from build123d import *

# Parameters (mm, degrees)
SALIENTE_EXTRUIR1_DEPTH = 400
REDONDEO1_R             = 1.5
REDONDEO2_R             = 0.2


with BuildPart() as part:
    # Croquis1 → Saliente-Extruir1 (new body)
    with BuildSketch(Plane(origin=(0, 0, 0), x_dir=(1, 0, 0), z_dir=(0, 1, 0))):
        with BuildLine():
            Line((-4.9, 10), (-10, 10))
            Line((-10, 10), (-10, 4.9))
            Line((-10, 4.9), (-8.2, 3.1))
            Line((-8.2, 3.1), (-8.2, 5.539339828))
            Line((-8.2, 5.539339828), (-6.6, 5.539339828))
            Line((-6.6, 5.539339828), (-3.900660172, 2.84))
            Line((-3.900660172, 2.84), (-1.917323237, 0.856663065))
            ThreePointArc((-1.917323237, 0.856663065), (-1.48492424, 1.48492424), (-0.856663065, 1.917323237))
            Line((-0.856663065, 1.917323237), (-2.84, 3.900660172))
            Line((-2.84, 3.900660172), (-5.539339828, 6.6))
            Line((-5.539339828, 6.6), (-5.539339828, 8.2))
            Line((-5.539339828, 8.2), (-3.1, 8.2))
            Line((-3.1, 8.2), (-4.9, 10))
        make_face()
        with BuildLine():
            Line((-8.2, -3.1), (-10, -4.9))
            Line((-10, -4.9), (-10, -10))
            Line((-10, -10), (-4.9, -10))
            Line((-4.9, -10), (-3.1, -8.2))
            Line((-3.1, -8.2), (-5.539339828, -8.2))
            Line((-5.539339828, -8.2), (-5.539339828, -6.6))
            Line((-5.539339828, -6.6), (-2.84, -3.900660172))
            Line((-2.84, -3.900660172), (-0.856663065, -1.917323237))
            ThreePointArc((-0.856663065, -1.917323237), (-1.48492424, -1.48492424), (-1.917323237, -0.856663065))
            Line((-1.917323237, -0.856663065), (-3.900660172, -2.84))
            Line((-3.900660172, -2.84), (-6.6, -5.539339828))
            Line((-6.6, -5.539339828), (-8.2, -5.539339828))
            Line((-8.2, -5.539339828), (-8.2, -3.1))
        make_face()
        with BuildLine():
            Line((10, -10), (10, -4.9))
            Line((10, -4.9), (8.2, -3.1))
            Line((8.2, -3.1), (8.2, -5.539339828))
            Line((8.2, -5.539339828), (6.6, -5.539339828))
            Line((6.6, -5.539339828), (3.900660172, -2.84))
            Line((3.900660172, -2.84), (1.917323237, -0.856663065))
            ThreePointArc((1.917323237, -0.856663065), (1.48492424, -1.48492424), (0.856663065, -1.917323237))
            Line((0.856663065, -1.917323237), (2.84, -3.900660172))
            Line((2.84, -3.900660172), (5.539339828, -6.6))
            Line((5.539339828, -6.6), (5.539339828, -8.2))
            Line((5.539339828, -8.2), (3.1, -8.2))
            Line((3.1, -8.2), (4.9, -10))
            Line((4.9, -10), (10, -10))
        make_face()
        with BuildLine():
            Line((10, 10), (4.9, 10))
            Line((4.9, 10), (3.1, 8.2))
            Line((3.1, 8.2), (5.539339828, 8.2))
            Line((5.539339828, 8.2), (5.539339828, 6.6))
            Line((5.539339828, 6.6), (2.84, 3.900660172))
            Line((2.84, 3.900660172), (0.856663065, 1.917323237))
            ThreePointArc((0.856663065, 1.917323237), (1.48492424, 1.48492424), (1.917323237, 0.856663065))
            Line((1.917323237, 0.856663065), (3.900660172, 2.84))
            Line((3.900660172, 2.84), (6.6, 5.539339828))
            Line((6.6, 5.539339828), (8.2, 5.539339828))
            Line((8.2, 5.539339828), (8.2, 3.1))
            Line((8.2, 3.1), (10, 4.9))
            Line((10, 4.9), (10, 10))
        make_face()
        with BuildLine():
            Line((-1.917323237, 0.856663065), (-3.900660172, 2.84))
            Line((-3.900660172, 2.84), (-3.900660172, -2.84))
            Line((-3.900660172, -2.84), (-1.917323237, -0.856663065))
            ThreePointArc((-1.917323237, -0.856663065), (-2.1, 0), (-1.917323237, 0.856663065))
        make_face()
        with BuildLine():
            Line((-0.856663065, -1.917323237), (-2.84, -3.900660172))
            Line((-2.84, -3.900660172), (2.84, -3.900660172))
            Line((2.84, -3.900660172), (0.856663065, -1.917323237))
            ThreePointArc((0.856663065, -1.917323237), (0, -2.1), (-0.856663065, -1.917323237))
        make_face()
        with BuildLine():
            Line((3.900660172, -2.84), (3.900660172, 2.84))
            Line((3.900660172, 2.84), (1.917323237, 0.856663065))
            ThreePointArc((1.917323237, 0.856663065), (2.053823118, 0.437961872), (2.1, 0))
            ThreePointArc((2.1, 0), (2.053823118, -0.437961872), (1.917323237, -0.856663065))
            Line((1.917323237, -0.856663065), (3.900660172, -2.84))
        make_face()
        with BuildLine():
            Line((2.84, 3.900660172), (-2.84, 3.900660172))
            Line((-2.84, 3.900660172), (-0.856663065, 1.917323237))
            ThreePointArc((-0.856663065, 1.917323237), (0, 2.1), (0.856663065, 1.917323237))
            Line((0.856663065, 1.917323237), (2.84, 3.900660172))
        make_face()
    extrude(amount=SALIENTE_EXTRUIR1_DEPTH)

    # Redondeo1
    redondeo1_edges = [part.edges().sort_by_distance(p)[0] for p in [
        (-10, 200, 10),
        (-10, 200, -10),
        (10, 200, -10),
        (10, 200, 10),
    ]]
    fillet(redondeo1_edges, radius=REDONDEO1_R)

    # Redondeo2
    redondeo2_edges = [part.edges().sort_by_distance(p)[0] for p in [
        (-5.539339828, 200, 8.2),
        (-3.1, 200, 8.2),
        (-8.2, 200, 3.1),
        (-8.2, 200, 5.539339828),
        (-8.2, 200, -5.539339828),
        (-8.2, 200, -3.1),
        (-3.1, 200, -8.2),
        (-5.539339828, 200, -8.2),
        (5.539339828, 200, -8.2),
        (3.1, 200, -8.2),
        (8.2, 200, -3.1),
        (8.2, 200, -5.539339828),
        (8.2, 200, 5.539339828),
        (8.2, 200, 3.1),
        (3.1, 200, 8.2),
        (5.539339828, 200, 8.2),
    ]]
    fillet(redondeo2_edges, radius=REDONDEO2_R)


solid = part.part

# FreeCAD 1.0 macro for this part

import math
import FreeCAD as App
import Part
import Sketcher
from FreeCAD import Vector


def edges_at(feature, points):
    """Names of the edges that pass closest to the given points."""
    edges = feature.Shape.Edges
    near = lambda p: min(range(len(edges)), key=lambda i: edges[i].distToShape(Part.Vertex(*p))[0])
    return sorted({f"Edge{near(p) + 1}" for p in points})


def add_polygon(sketch, points):
    """Adds a closed chain of lines whose ends are joined by coincident constraints."""
    first, n = sketch.GeometryCount, len(points)
    for a, b in zip(points, points[1:] + points[:1]):
        sketch.addGeometry(Part.LineSegment(App.Vector(*a, 0), App.Vector(*b, 0)), False)
    for i in range(n):
        sketch.addConstraint(Sketcher.Constraint("Coincident", first + i, 2, first + (i + 1) % n, 1))

doc = App.newDocument("Part")
body = doc.addObject("PartDesign::Body", "Body")

# Sketch on XZ plane
sketch1 = doc.addObject("Sketcher::SketchObject", "Sketch")
body.addObject(sketch1)
sketch1.AttachmentSupport = (doc.XZ_Plane, [""])
sketch1.MapMode = "FlatFace"
add_polygon(sketch1, [(-4.9, -10), (-10, -10), (-10, -4.9), (-8.2, -3.1), (-8.2, -5.5), (-6.6, -5.5), (-3.9, -2.8), (-3.9, 2.8), (-6.6, 5.5), (-8.2, 5.5), (-8.2, 3.1), (-10, 4.9), (-10, 10), (-4.9, 10), (-3.1, 8.2), (-5.5, 8.2), (-5.5, 6.6), (-2.8, 3.9), (2.8, 3.9), (5.5, 6.6), (5.5, 8.2), (3.1, 8.2), (4.9, 10), (10, 10), (10, 4.9), (8.2, 3.1), (8.2, 5.5), (6.6, 5.5), (3.9, 2.8), (3.9, -2.8), (6.6, -5.5), (8.2, -5.5), (8.2, -3.1), (10, -4.9), (10, -10), (4.9, -10), (3.1, -8.2), (5.5, -8.2), (5.5, -6.6), (2.8, -3.9), (-2.8, -3.9), (-5.5, -6.6), (-5.5, -8.2), (-3.1, -8.2)])  # lines 0-43
sketch1.addGeometry(Part.ArcOfCircle(Part.Circle(Vector(0, 0, 0), Vector(0, 0, 1), 2.1), math.radians(-66), math.radians(-24)), False)  # 44
sketch1.addGeometry(Part.ArcOfCircle(Part.Circle(Vector(0, 0, 0), Vector(0, 0, 1), 2.1), math.radians(-24), math.radians(0)), False)  # 45
sketch1.addGeometry(Part.ArcOfCircle(Part.Circle(Vector(0, 0, 0), Vector(0, 0, 1), 2.1), math.radians(0), math.radians(24)), False)  # 46
sketch1.addGeometry(Part.ArcOfCircle(Part.Circle(Vector(0, 0, 0), Vector(0, 0, 1), 2.1), math.radians(24), math.radians(66)), False)  # 47
sketch1.addGeometry(Part.ArcOfCircle(Part.Circle(Vector(0, 0, 0), Vector(0, 0, 1), 2.1), math.radians(66), math.radians(114)), False)  # 48
sketch1.addGeometry(Part.ArcOfCircle(Part.Circle(Vector(0, 0, 0), Vector(0, 0, 1), 2.1), math.radians(114), math.radians(156)), False)  # 49
sketch1.addGeometry(Part.ArcOfCircle(Part.Circle(Vector(0, 0, 0), Vector(0, 0, 1), 2.1), math.radians(156), math.radians(204)), False)  # 50
sketch1.addGeometry(Part.ArcOfCircle(Part.Circle(Vector(0, 0, 0), Vector(0, 0, 1), 2.1), math.radians(-156), math.radians(-114)), False)  # 51
sketch1.addGeometry(Part.ArcOfCircle(Part.Circle(Vector(0, 0, 0), Vector(0, 0, 1), 2.1), math.radians(-114), math.radians(-66)), False)  # 52
sketch1.addConstraint([
    Sketcher.Constraint("Tangent", 44, 2, 45, 1),
    Sketcher.Constraint("Tangent", 45, 2, 46, 1),
    Sketcher.Constraint("Tangent", 46, 2, 47, 1),
    Sketcher.Constraint("Tangent", 47, 2, 48, 1),
    Sketcher.Constraint("Tangent", 48, 2, 49, 1),
    Sketcher.Constraint("Tangent", 49, 2, 50, 1),
    Sketcher.Constraint("Tangent", 50, 2, 51, 1),
    Sketcher.Constraint("Tangent", 51, 2, 52, 1),
    Sketcher.Constraint("Tangent", 52, 2, 44, 1),
    Sketcher.Constraint("Horizontal", 0),
    Sketcher.Constraint("Vertical", 1),
    Sketcher.Constraint("Vertical", 3),
    Sketcher.Constraint("Horizontal", 4),
    Sketcher.Constraint("Vertical", 6),
    Sketcher.Constraint("Horizontal", 8),
    Sketcher.Constraint("Vertical", 9),
    Sketcher.Constraint("Vertical", 11),
    Sketcher.Constraint("Horizontal", 12),
    Sketcher.Constraint("Horizontal", 14),
    Sketcher.Constraint("Vertical", 15),
    Sketcher.Constraint("Horizontal", 17),
    Sketcher.Constraint("Vertical", 19),
    Sketcher.Constraint("Horizontal", 20),
    Sketcher.Constraint("Horizontal", 22),
    Sketcher.Constraint("Vertical", 23),
    Sketcher.Constraint("Vertical", 25),
    Sketcher.Constraint("Horizontal", 26),
    Sketcher.Constraint("Vertical", 28),
    Sketcher.Constraint("Horizontal", 30),
    Sketcher.Constraint("Vertical", 31),
    Sketcher.Constraint("Vertical", 33),
    Sketcher.Constraint("Horizontal", 34),
    Sketcher.Constraint("Horizontal", 36),
    Sketcher.Constraint("Vertical", 37),
    Sketcher.Constraint("Horizontal", 39),
    Sketcher.Constraint("Vertical", 41),
    Sketcher.Constraint("Horizontal", 42),
    Sketcher.Constraint("Coincident", 44, 3, -1, 1),
    Sketcher.Constraint("Coincident", 46, 3, -1, 1),
    Sketcher.Constraint("Coincident", 48, 3, -1, 1),
    Sketcher.Constraint("Coincident", 50, 3, -1, 1),
    Sketcher.Constraint("Symmetric", 0, 2, 22, 2, -1, 1),
    Sketcher.Constraint("Symmetric", 2, 2, 24, 2, -1, 1),
    Sketcher.Constraint("Symmetric", 4, 2, 26, 2, -1, 1),
    Sketcher.Constraint("Symmetric", 5, 2, 27, 2, -1, 1),
    Sketcher.Constraint("Symmetric", 7, 2, 29, 2, -1, 1),
    Sketcher.Constraint("Symmetric", 9, 2, 31, 2, -1, 1),
    Sketcher.Constraint("Symmetric", 10, 2, 32, 2, -1, 1),
    Sketcher.Constraint("Symmetric", 12, 2, 34, 2, -1, 1),
    Sketcher.Constraint("Symmetric", 13, 2, 35, 2, -1, 1),
    Sketcher.Constraint("Symmetric", 15, 2, 37, 2, -1, 1),
    Sketcher.Constraint("Symmetric", 16, 2, 38, 2, -1, 1),
    Sketcher.Constraint("Symmetric", 18, 2, 40, 2, -1, 1),
    Sketcher.Constraint("Symmetric", 20, 2, 42, 2, -1, 1),
    Sketcher.Constraint("Symmetric", 15, 2, 18, 2, -2),
    Sketcher.Constraint("Symmetric", 13, 2, 20, 2, -2),
    Sketcher.Constraint("Symmetric", 12, 2, 21, 2, -2),
    Sketcher.Constraint("Symmetric", 10, 2, 23, 2, -2),
    Sketcher.Constraint("Symmetric", 9, 2, 24, 2, -2),
    Sketcher.Constraint("Symmetric", 7, 2, 26, 2, -2),
    Sketcher.Constraint("PointOnObject", 45, 2, -1),
    Sketcher.Constraint("Parallel", 2, 5),
    Sketcher.Constraint("Perpendicular", 5, 7),
    Sketcher.Constraint("Parallel", 7, 10),
    Sketcher.Constraint("Parallel", 10, 13),
    Sketcher.Constraint("Parallel", 13, 16),
    Sketcher.Constraint("Perpendicular", 16, 18),
    Sketcher.Constraint("Parallel", 18, 21),
    Sketcher.Constraint("Perpendicular", 27, 29),
    Sketcher.Constraint("Perpendicular", 38, 40),
    Sketcher.Constraint("Parallel", 40, 43),
    Sketcher.Constraint("Horizontal", 47, 2, 48, 2),
    Sketcher.Constraint("Horizontal", 46, 2, 49, 2),
    Sketcher.Constraint("Horizontal", 44, 2, 50, 2),
    Sketcher.Constraint("Horizontal", 51, 2, 52, 2),
    Sketcher.Constraint("Vertical", 44, 2, 46, 2),
    Sketcher.Constraint("Vertical", 48, 2, 51, 2),
    Sketcher.Constraint("Equal", 34, 1),
    Sketcher.Constraint("Equal", 42, 3),
    Sketcher.Constraint("Equal", 39, 6),
    Sketcher.Constraint("Equal", 30, 15),
    Sketcher.Constraint("Equal", 10, 13),
    Sketcher.Constraint("Equal", 7, 16),
    Sketcher.Constraint("Radius", 44, 2.1),
    Sketcher.Constraint("DistanceX", 0, 2, 0, 1, 5.1),
    Sketcher.Constraint("DistanceX", 4, 1, 4, 2, 1.6),
    Sketcher.Constraint("DistanceX", 0, 2, -1, 1, 10.0),
    Sketcher.Constraint("DistanceX", 17, 1, 17, 2, 5.68),
    Sketcher.Constraint("DistanceX", 2, 2, -1, 1, 8.2),
    Sketcher.Constraint("DistanceX", 14, 2, 14, 1, 2.43934),
    Sketcher.Constraint("DistanceX", -1, 1, 44, 2, 1.917323),
    Sketcher.Constraint("DistanceX", -1, 1, 47, 2, 0.856663),
])
pad1 = doc.addObject("PartDesign::Pad", "Pad")
body.addObject(pad1)
pad1.Profile = sketch1
pad1.Length = 400
pad1.Reversed = True
doc.recompute()

fillet = doc.addObject("PartDesign::Fillet", "Fillet")
body.addObject(fillet)
fillet.Base = (pad1, edges_at(pad1, [
    (-10, 200, 10),
    (-10, 200, -10),
    (10, 200, -10),
    (10, 200, 10),
]))
fillet.Radius = 1.5
doc.recompute()

fillet2 = doc.addObject("PartDesign::Fillet", "Fillet001")
body.addObject(fillet2)
fillet2.Base = (fillet, edges_at(fillet, [
    (-5.539, 200, 8.2),
    (-3.1, 200, 8.2),
    (-8.2, 200, 3.1),
    (-8.2, 200, 5.539),
    (-8.2, 200, -5.539),
    (-8.2, 200, -3.1),
    (-3.1, 200, -8.2),
    (-5.539, 200, -8.2),
    (5.539, 200, -8.2),
    (3.1, 200, -8.2),
    (8.2, 200, -3.1),
    (8.2, 200, -5.539),
    (8.2, 200, 5.539),
    (8.2, 200, 3.1),
    (3.1, 200, 8.2),
    (5.539, 200, 8.2),
]))
fillet2.Radius = 0.2

doc.recompute()
